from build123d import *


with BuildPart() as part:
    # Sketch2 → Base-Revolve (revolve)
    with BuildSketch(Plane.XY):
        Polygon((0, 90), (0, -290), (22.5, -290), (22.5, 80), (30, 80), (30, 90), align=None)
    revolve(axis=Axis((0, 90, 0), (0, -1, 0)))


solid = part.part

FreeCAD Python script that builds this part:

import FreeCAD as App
import Part
import Sketcher

V = App.Vector


def add_polygon(sketch, points):
    """Adds a closed chain of lines whose ends are joined by coincident constraints."""
    first, n = sketch.GeometryCount, len(points)
    for a, b in zip(points, points[1:] + points[:1]):
        sketch.addGeometry(Part.LineSegment(App.Vector(*a, 0), App.Vector(*b, 0)), False)
    for i in range(n):
        sketch.addConstraint(Sketcher.Constraint("Coincident", first + i, 2, first + (i + 1) % n, 1))

doc = App.newDocument("Part")
body = doc.addObject("PartDesign::Body", "Body")

# Sketch on XY plane
sketch1 = body.newObject("Sketcher::SketchObject", "Sketch")
sketch1.AttachmentSupport = (doc.getObject("XY_Plane"), [""])
sketch1.MapMode = "FlatFace"
add_polygon(sketch1, [(0, 90), (0, -290), (22, -290), (22, 80), (30, 80), (30, 90)])  # lines 0-5
sketch1.addConstraint([
    Sketcher.Constraint("Vertical", 0),
    Sketcher.Constraint("Horizontal", 1),
    Sketcher.Constraint("Vertical", 2),
    Sketcher.Constraint("Horizontal", 3),
    Sketcher.Constraint("Vertical", 4),
    Sketcher.Constraint("Horizontal", 5),
    Sketcher.Constraint("PointOnObject", 0, 2, -2),
    Sketcher.Constraint("DistanceX", 5, 2, 5, 1, 30.0),
    Sketcher.Constraint("DistanceY", 0, 2, 0, 1, 380.0),
    Sketcher.Constraint("DistanceY", 2, 1, 2, 2, 370.0),
    Sketcher.Constraint("DistanceX", 1, 1, 1, 2, 22.5),
    Sketcher.Constraint("DistanceY", 0, 2, -1, 1, 290.0),
])
revolution = body.newObject("PartDesign::Revolution", "Revolution")
revolution.Profile = sketch1
revolution.ReferenceAxis = (sketch1, ["V_Axis"])
revolution.Angle = 360

doc.recompute()
